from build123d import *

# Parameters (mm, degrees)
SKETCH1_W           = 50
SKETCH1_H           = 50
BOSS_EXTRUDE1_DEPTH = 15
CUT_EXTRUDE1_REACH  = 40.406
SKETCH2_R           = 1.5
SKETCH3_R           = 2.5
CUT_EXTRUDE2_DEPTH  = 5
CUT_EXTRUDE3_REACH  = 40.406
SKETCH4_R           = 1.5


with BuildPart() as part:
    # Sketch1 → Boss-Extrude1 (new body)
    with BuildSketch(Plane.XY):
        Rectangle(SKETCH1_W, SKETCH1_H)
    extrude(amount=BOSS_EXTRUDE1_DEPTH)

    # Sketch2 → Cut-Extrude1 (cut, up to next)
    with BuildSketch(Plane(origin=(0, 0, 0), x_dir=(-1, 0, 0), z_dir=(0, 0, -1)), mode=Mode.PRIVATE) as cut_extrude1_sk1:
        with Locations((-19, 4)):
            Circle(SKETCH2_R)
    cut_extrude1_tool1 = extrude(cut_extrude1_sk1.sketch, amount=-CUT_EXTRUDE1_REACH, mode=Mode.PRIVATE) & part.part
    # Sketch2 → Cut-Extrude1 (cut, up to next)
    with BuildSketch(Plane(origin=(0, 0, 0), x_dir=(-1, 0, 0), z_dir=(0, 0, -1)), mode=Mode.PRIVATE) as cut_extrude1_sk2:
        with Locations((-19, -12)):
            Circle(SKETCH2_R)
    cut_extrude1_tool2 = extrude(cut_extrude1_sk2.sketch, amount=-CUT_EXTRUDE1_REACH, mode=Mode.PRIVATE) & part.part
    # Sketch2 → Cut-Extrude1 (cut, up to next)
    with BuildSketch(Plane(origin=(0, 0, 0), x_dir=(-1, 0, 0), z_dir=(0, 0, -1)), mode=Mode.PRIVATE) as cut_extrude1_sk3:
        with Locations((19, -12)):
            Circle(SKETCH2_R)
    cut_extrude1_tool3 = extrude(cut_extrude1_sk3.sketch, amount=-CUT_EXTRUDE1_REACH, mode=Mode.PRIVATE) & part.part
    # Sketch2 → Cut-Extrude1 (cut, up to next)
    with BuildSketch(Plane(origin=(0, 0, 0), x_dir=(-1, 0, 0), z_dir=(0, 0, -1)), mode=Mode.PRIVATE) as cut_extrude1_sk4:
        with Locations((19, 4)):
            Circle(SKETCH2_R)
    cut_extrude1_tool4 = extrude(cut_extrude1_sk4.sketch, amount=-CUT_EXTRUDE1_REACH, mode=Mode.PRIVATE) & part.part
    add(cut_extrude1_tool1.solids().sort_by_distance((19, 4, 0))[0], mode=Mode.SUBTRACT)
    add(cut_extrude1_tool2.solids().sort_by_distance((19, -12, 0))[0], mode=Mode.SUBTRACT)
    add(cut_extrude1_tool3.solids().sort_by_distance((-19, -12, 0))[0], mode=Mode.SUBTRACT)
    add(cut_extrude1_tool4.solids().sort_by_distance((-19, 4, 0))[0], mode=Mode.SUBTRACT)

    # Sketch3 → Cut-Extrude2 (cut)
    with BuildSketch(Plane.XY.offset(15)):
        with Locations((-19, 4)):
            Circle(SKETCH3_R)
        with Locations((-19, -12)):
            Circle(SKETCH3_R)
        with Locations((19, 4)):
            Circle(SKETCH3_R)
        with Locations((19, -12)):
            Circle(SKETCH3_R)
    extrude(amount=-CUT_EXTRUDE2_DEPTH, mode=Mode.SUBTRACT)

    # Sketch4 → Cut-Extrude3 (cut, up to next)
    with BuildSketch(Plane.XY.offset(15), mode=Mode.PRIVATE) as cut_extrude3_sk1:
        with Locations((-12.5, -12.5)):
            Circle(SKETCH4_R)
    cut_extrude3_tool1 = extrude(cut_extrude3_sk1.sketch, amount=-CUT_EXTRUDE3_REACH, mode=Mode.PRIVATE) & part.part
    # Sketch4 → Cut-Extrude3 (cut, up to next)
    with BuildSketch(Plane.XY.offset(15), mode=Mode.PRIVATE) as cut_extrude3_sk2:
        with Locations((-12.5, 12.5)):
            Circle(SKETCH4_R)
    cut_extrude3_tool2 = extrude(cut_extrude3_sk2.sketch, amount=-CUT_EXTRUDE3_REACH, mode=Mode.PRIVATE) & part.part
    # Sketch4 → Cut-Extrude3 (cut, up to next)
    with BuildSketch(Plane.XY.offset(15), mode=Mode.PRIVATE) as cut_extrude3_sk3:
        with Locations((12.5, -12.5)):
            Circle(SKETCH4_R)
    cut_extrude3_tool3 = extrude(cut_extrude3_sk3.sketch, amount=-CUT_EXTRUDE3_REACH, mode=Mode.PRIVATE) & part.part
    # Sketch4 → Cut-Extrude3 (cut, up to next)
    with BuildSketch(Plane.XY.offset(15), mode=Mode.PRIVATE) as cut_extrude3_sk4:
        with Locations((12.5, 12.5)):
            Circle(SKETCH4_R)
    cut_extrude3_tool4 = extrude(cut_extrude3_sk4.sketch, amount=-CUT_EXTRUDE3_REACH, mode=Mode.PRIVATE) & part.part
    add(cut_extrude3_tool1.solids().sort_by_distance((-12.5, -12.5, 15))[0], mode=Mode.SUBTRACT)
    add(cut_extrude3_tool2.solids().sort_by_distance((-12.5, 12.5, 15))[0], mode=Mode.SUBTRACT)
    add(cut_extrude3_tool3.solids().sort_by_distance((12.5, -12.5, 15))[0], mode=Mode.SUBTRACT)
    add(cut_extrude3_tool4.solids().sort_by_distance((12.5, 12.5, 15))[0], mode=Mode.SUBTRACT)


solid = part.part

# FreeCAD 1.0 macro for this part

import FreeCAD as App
import Part
import Sketcher
from FreeCAD import Vector
Q = App.Units.Quantity


def add_polygon(sketch, points):
    """Adds a closed chain of lines whose ends are joined by coincident constraints."""
    first, n = sketch.GeometryCount, len(points)
    for a, b in zip(points, points[1:] + points[:1]):
        sketch.addGeometry(Part.LineSegment(App.Vector(*a, 0), App.Vector(*b, 0)), False)
    for i in range(n):
        sketch.addConstraint(Sketcher.Constraint("Coincident", first + i, 2, first + (i + 1) % n, 1))

doc = App.newDocument("Part")
body = doc.addObject("PartDesign::Body", "Body")

# Sketch on XY plane
sketch1 = body.newObject("Sketcher::SketchObject", "Sketch")
sketch1.AttachmentSupport = (doc.getObject("XY_Plane"), [""])
sketch1.MapMode = "FlatFace"
add_polygon(sketch1, [(-25, 25), (-25, -25), (25, -25), (25, 25)])  # lines 0-3
sketch1.addConstraint(Sketcher.Constraint("Vertical", 0))
sketch1.addConstraint(Sketcher.Constraint("Horizontal", 1))
sketch1.addConstraint(Sketcher.Constraint("Vertical", 2))
sketch1.addConstraint(Sketcher.Constraint("Horizontal", 3))
sketch1.addConstraint(Sketcher.Constraint("Symmetric", 0, 2, 2, 2, -1, 1))
sketch1.addConstraint(Sketcher.Constraint("Equal", 3, 0))
sketch1.addConstraint(Sketcher.Constraint("DistanceX", 1, 1, 1, 2, Q("50 mm")))
pad1 = body.newObject("PartDesign::Pad", "Pad")
pad1.Profile = sketch1
pad1.Length = 15

# Sketch on XY plane
sketch2 = body.newObject("Sketcher::SketchObject", "Sketch001")
sketch2.AttachmentSupport = (doc.getObject("XY_Plane"), [""])
sketch2.MapMode = "FlatFace"
sketch2.addGeometry(Part.Circle(Vector(19, 4, 0), Vector(0, 0, 1), 1.5), False)
sketch2.addConstraint(Sketcher.Constraint("Diameter", 0, Q("3 mm")))
sketch2.addConstraint(Sketcher.Constraint("DistanceX", -1, 1, 0, 3, Q("19 mm")))
sketch2.addConstraint(Sketcher.Constraint("DistanceY", -1, 1, 0, 3, Q("4 mm")))
pocket1 = body.newObject("PartDesign::Pocket", "Pocket")
pocket1.Profile = sketch2
pocket1.Type = "UpToFirst"
pocket1.Reversed = True

# Sketch on XY plane
sketch3 = body.newObject("Sketcher::SketchObject", "Sketch002")
sketch3.AttachmentSupport = (doc.getObject("XY_Plane"), [""])
sketch3.MapMode = "FlatFace"
sketch3.addGeometry(Part.Circle(Vector(19, -12, 0), Vector(0, 0, 1), 1.5), False)
sketch3.addConstraint(Sketcher.Constraint("Diameter", 0, Q("3 mm")))
sketch3.addConstraint(Sketcher.Constraint("DistanceX", -1, 1, 0, 3, Q("19 mm")))
sketch3.addConstraint(Sketcher.Constraint("DistanceY", 0, 3, -1, 1, Q("12 mm")))
pocket2 = body.newObject("PartDesign::Pocket", "Pocket001")
pocket2.Profile = sketch3
pocket2.Type = "UpToFirst"
pocket2.Reversed = True

# Sketch on XY plane
sketch4 = body.newObject("Sketcher::SketchObject", "Sketch003")
sketch4.AttachmentSupport = (doc.getObject("XY_Plane"), [""])
sketch4.MapMode = "FlatFace"
sketch4.addGeometry(Part.Circle(Vector(-19, -12, 0), Vector(0, 0, 1), 1.5), False)
sketch4.addConstraint(Sketcher.Constraint("Diameter", 0, Q("3 mm")))
sketch4.addConstraint(Sketcher.Constraint("DistanceX", 0, 3, -1, 1, Q("19 mm")))
sketch4.addConstraint(Sketcher.Constraint("DistanceY", 0, 3, -1, 1, Q("12 mm")))
pocket3 = body.newObject("PartDesign::Pocket", "Pocket002")
pocket3.Profile = sketch4
pocket3.Type = "UpToFirst"
pocket3.Reversed = True

# Sketch on XY plane
sketch5 = body.newObject("Sketcher::SketchObject", "Sketch004")
sketch5.AttachmentSupport = (doc.getObject("XY_Plane"), [""])
sketch5.MapMode = "FlatFace"
sketch5.addGeometry(Part.Circle(Vector(-19, 4, 0), Vector(0, 0, 1), 1.5), False)
sketch5.addConstraint(Sketcher.Constraint("Diameter", 0, Q("3 mm")))
sketch5.addConstraint(Sketcher.Constraint("DistanceX", 0, 3, -1, 1, Q("19 mm")))
sketch5.addConstraint(Sketcher.Constraint("DistanceY", -1, 1, 0, 3, Q("4 mm")))
pocket4 = body.newObject("PartDesign::Pocket", "Pocket003")
pocket4.Profile = sketch5
pocket4.Type = "UpToFirst"
pocket4.Reversed = True

# Sketch on XY plane
sketch6 = body.newObject("Sketcher::SketchObject", "Sketch005")
sketch6.AttachmentSupport = (doc.getObject("XY_Plane"), [""])
sketch6.MapMode = "FlatFace"
sketch6.AttachmentOffset = App.Placement(Vector(0, 0, 15), App.Rotation())
sketch6.addGeometry(Part.Circle(Vector(-19, 4, 0), Vector(0, 0, 1), 2.5), False)
sketch6.addGeometry(Part.Circle(Vector(-19, -12, 0), Vector(0, 0, 1), 2.5), False)
sketch6.addGeometry(Part.Circle(Vector(19, 4, 0), Vector(0, 0, 1), 2.5), False)
sketch6.addGeometry(Part.Circle(Vector(19, -12, 0), Vector(0, 0, 1), 2.5), False)
sketch6.addConstraint(Sketcher.Constraint("Equal", 0, 1))
sketch6.addConstraint(Sketcher.Constraint("Equal", 1, 2))
sketch6.addConstraint(Sketcher.Constraint("Equal", 2, 3))
sketch6.addConstraint(Sketcher.Constraint("Symmetric", 0, 3, 2, 3, -2))
sketch6.addConstraint(Sketcher.Constraint("Symmetric", 1, 3, 3, 3, -2))
sketch6.addConstraint(Sketcher.Constraint("Vertical", 0, 3, 1, 3))
sketch6.addConstraint(Sketcher.Constraint("Diameter", 0, Q("5 mm")))
sketch6.addConstraint(Sketcher.Constraint("DistanceX", 0, 3, -1, 1, Q("19 mm")))
sketch6.addConstraint(Sketcher.Constraint("DistanceY", -1, 1, 0, 3, Q("4 mm")))
sketch6.addConstraint(Sketcher.Constraint("DistanceY", 1, 3, -1, 1, Q("12 mm")))
pocket5 = body.newObject("PartDesign::Pocket", "Pocket004")
pocket5.Profile = sketch6
pocket5.Length = 5

# Sketch on XY plane
sketch7 = body.newObject("Sketcher::SketchObject", "Sketch006")
sketch7.AttachmentSupport = (doc.getObject("XY_Plane"), [""])
sketch7.MapMode = "FlatFace"
sketch7.AttachmentOffset = App.Placement(Vector(0, 0, 15), App.Rotation())
sketch7.addGeometry(Part.Circle(Vector(-12.5, -12.5, 0), Vector(0, 0, 1), 1.5), False)
sketch7.addConstraint(Sketcher.Constraint("Diameter", 0, Q("3 mm")))
sketch7.addConstraint(Sketcher.Constraint("DistanceX", 0, 3, -1, 1, Q("12.5 mm")))
sketch7.addConstraint(Sketcher.Constraint("DistanceY", 0, 3, -1, 1, Q("12.5 mm")))
pocket6 = body.newObject("PartDesign::Pocket", "Pocket005")
pocket6.Profile = sketch7
pocket6.Type = "UpToFirst"

# Sketch on XY plane
sketch8 = body.newObject("Sketcher::SketchObject", "Sketch007")
sketch8.AttachmentSupport = (doc.getObject("XY_Plane"), [""])
sketch8.MapMode = "FlatFace"
sketch8.AttachmentOffset = App.Placement(Vector(0, 0, 15), App.Rotation())
sketch8.addGeometry(Part.Circle(Vector(-12.5, 12.5, 0), Vector(0, 0, 1), 1.5), False)
sketch8.addConstraint(Sketcher.Constraint("Diameter", 0, Q("3 mm")))
sketch8.addConstraint(Sketcher.Constraint("DistanceX", 0, 3, -1, 1, Q("12.5 mm")))
sketch8.addConstraint(Sketcher.Constraint("DistanceY", -1, 1, 0, 3, Q("12.5 mm")))
pocket7 = body.newObject("PartDesign::Pocket", "Pocket006")
pocket7.Profile = sketch8
pocket7.Type = "UpToFirst"

# Sketch on XY plane
sketch9 = body.newObject("Sketcher::SketchObject", "Sketch008")
sketch9.AttachmentSupport = (doc.getObject("XY_Plane"), [""])
sketch9.MapMode = "FlatFace"
sketch9.AttachmentOffset = App.Placement(Vector(0, 0, 15), App.Rotation())
sketch9.addGeometry(Part.Circle(Vector(12.5, -12.5, 0), Vector(0, 0, 1), 1.5), False)
sketch9.addConstraint(Sketcher.Constraint("Diameter", 0, Q("3 mm")))
sketch9.addConstraint(Sketcher.Constraint("DistanceX", -1, 1, 0, 3, Q("12.5 mm")))
sketch9.addConstraint(Sketcher.Constraint("DistanceY", 0, 3, -1, 1, Q("12.5 mm")))
pocket8 = body.newObject("PartDesign::Pocket", "Pocket007")
pocket8.Profile = sketch9
pocket8.Type = "UpToFirst"

# Sketch on XY plane
sketch10 = body.newObject("Sketcher::SketchObject", "Sketch009")
sketch10.AttachmentSupport = (doc.getObject("XY_Plane"), [""])
sketch10.MapMode = "FlatFace"
sketch10.AttachmentOffset = App.Placement(Vector(0, 0, 15), App.Rotation())
sketch10.addGeometry(Part.Circle(Vector(12.5, 12.5, 0), Vector(0, 0, 1), 1.5), False)
sketch10.addConstraint(Sketcher.Constraint("Diameter", 0, Q("3 mm")))
sketch10.addConstraint(Sketcher.Constraint("DistanceX", -1, 1, 0, 3, Q("12.5 mm")))
sketch10.addConstraint(Sketcher.Constraint("DistanceY", -1, 1, 0, 3, Q("12.5 mm")))
pocket9 = body.newObject("PartDesign::Pocket", "Pocket008")
pocket9.Profile = sketch10
pocket9.Type = "UpToFirst"

doc.recompute()
